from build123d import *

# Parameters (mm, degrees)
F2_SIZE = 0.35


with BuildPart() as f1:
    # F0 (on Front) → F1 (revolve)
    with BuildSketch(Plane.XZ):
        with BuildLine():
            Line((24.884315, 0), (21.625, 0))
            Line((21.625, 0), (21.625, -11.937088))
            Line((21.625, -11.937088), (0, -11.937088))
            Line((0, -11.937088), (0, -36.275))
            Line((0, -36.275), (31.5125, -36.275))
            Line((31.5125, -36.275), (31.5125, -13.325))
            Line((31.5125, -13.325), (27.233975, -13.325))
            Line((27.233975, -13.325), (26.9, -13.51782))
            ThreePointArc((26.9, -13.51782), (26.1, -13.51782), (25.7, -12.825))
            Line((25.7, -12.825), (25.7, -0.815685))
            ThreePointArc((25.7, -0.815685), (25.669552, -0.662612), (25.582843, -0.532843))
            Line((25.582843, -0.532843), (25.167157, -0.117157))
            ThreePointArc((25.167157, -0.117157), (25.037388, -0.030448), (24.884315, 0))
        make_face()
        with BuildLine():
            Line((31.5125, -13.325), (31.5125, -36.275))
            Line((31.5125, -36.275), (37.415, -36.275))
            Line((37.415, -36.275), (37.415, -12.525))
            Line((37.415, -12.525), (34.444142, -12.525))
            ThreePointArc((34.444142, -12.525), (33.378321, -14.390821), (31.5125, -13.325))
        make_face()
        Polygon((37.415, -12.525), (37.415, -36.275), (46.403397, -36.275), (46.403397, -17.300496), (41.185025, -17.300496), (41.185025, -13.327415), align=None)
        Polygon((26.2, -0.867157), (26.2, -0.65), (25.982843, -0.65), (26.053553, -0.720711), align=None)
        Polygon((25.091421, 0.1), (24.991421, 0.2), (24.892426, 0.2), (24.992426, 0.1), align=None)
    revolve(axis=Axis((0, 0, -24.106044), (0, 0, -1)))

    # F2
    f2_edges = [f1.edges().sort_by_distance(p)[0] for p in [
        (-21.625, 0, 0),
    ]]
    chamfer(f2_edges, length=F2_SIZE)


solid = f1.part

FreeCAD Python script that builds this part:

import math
import FreeCAD as App
import Part
import Sketcher
Q = App.Units.Quantity


def edges_at(feature, points):
    """Names of the edges that pass closest to the given points."""
    edges = feature.Shape.Edges
    near = lambda p: min(range(len(edges)), key=lambda i: edges[i].distToShape(Part.Vertex(*p))[0])
    return sorted({f"Edge{near(p) + 1}" for p in points})


def add_polygon(sketch, points):
    """Adds a closed chain of lines whose ends are joined by coincident constraints."""
    first, n = sketch.GeometryCount, len(points)
    for a, b in zip(points, points[1:] + points[:1]):
        sketch.addGeometry(Part.LineSegment(App.Vector(*a, 0), App.Vector(*b, 0)), False)
    for i in range(n):
        sketch.addConstraint(Sketcher.Constraint("Coincident", first + i, 2, first + (i + 1) % n, 1))

doc = App.newDocument("Part")
body = doc.addObject("PartDesign::Body", "Body")
body.AllowCompound = True

# Sketch on XZ plane
sketch1 = doc.addObject("Sketcher::SketchObject", "Sketch")
body.addObject(sketch1)
sketch1.AttachmentSupport = (doc.XZ_Plane, [""])
sketch1.MapMode = "FlatFace"
sketch1.addGeometry(Part.LineSegment(App.Vector(24.884315, 0, 0), App.Vector(21.625, 0, 0)), False)  # 0
sketch1.addGeometry(Part.LineSegment(App.Vector(21.625, 0, 0), App.Vector(21.625, -11.937088, 0)), False)  # 1
sketch1.addGeometry(Part.LineSegment(App.Vector(21.625, -11.937088, 0), App.Vector(0, -11.937088, 0)), False)  # 2
sketch1.addGeometry(Part.LineSegment(App.Vector(0, -11.937088, 0), App.Vector(0, -36.275, 0)), False)  # 3
sketch1.addGeometry(Part.LineSegment(App.Vector(0, -36.275, 0), App.Vector(46.403397, -36.275, 0)), False)  # 4
sketch1.addGeometry(Part.LineSegment(App.Vector(46.403397, -36.275, 0), App.Vector(46.403397, -17.300496, 0)), False)  # 5
sketch1.addGeometry(Part.LineSegment(App.Vector(46.403397, -17.300496, 0), App.Vector(41.185025, -17.300496, 0)), False)  # 6
sketch1.addGeometry(Part.LineSegment(App.Vector(41.185025, -17.300496, 0), App.Vector(41.185025, -13.327415, 0)), False)  # 7
sketch1.addGeometry(Part.LineSegment(App.Vector(41.185025, -13.327415, 0), App.Vector(37.415, -12.525, 0)), False)  # 8
sketch1.addGeometry(Part.LineSegment(App.Vector(37.415, -12.525, 0), App.Vector(34.444142, -12.525, 0)), False)  # 9
sketch1.addGeometry(Part.ArcOfCircle(Part.Circle(App.Vector(32.978321, -12.925, 0), App.Vector(0, 0, 1), 1.519418), math.radians(-164.736491), math.radians(15.263509)), False)  # 10
sketch1.addGeometry(Part.LineSegment(App.Vector(31.5125, -13.325, 0), App.Vector(27.233975, -13.325, 0)), False)  # 11
sketch1.addGeometry(Part.LineSegment(App.Vector(27.233975, -13.325, 0), App.Vector(26.9, -13.51782, 0)), False)  # 12
sketch1.addGeometry(Part.ArcOfCircle(Part.Circle(App.Vector(26.5, -12.825, 0), App.Vector(0, 0, 1), 0.8), math.radians(-179.999977), math.radians(-60)), False)  # 13
sketch1.addGeometry(Part.LineSegment(App.Vector(25.7, -12.825, 0), App.Vector(25.7, -0.815685, 0)), False)  # 14
sketch1.addGeometry(Part.ArcOfCircle(Part.Circle(App.Vector(25.300002, -0.815684, 0), App.Vector(0, 0, 1), 0.399998), math.radians(-0.000078), math.radians(45.00008)), False)  # 15
sketch1.addGeometry(Part.LineSegment(App.Vector(25.582843, -0.532843, 0), App.Vector(25.167157, -0.117157, 0)), False)  # 16
sketch1.addGeometry(Part.ArcOfCircle(Part.Circle(App.Vector(24.884316, -0.399998, 0), App.Vector(0, 0, 1), 0.399998), math.radians(44.99992), math.radians(90.000078)), False)  # 17
add_polygon(sketch1, [(26.2, -0.867157), (26.2, -0.65), (25.982843, -0.65), (26.053553, -0.720711)])  # lines 18-21
add_polygon(sketch1, [(25.091421, 0.1), (24.991421, 0.2), (24.892426, 0.2), (24.992426, 0.1)])  # lines 22-25
sketch1.addConstraint([
    Sketcher.Constraint("Coincident", 0, 2, 1, 1),
    Sketcher.Constraint("Coincident", 1, 2, 2, 1),
    Sketcher.Constraint("Coincident", 2, 2, 3, 1),
    Sketcher.Constraint("Coincident", 3, 2, 4, 1),
    Sketcher.Constraint("Coincident", 4, 2, 5, 1),
    Sketcher.Constraint("Coincident", 5, 2, 6, 1),
    Sketcher.Constraint("Coincident", 6, 2, 7, 1),
    Sketcher.Constraint("Coincident", 7, 2, 8, 1),
    Sketcher.Constraint("Coincident", 8, 2, 9, 1),
    Sketcher.Constraint("Coincident", 9, 2, 10, 2),
    Sketcher.Constraint("Coincident", 10, 1, 11, 1),
    Sketcher.Constraint("Coincident", 11, 2, 12, 1),
    Sketcher.Constraint("Tangent", 12, 2, 13, 2),
    Sketcher.Constraint("Tangent", 13, 1, 14, 1),
    Sketcher.Constraint("Tangent", 14, 2, 15, 1),
    Sketcher.Constraint("Tangent", 15, 2, 16, 1),
    Sketcher.Constraint("Tangent", 16, 2, 17, 1),
    Sketcher.Constraint("Tangent", 17, 2, 0, 1),
    Sketcher.Constraint("Horizontal", 0),
    Sketcher.Constraint("Vertical", 1),
    Sketcher.Constraint("Horizontal", 2),
    Sketcher.Constraint("Vertical", 3),
    Sketcher.Constraint("Horizontal", 4),
    Sketcher.Constraint("Vertical", 5),
    Sketcher.Constraint("Horizontal", 6),
    Sketcher.Constraint("Vertical", 7),
    Sketcher.Constraint("Horizontal", 9),
    Sketcher.Constraint("Horizontal", 11),
    Sketcher.Constraint("Vertical", 14),
    Sketcher.Constraint("Vertical", 18),
    Sketcher.Constraint("Horizontal", 19),
    Sketcher.Constraint("Horizontal", 23),
    Sketcher.Constraint("Horizontal", 25),
    Sketcher.Constraint("Equal", 15, 17),
    Sketcher.Constraint("PointOnObject", 0, 2, -1),
    Sketcher.Constraint("PointOnObject", 2, 2, -2),
    Sketcher.Constraint("Parallel", 16, 22),
    Sketcher.Constraint("Parallel", 22, 24),
    Sketcher.Constraint("Equal", 19, 18),
    Sketcher.Constraint("Radius", 13, 0.8),
    Sketcher.Constraint("Angle", 16, Q("135 deg")),
    Sketcher.Constraint("Distance", 20, 0.1),
    Sketcher.Constraint("DistanceX", -1, 1, 13, 3, 26.5),
    Sketcher.Constraint("DistanceX", -1, 1, 12, 2, 26.9),
    Sketcher.Constraint("DistanceX", -1, 1, 18, 2, 26.2),
    Sketcher.Constraint("DistanceY", -1, 1, 22, 2, 0.2),
    Sketcher.Constraint("DistanceY", -1, 1, 24, 2, 0.1),
    Sketcher.Constraint("DistanceY", 10, 3, 13, 3, 0.1),
    Sketcher.Constraint("DistanceY", 10, 3, 8, 2, 0.4),
    Sketcher.Constraint("DistanceY", 10, 1, 10, 3, 0.4),
    Sketcher.Constraint("DistanceX", 15, 2, 19, 2, 0.4),
    Sketcher.Constraint("DistanceX", 2, 2, 2, 1, 21.625),
    Sketcher.Constraint("DistanceY", 18, 2, -1, 1, 0.65),
    Sketcher.Constraint("Radius", 10, 1.519418),
    Sketcher.Constraint("DistanceY", 3, 2, 13, 3, 23.45),
    Sketcher.Constraint("DistanceY", 10, 3, -1, 1, 12.925),
    Sketcher.Constraint("DistanceX", -1, 1, 8, 2, 37.415),
    Sketcher.Constraint("Radius", 15, 0.399998),
    Sketcher.Constraint("DistanceX", 6, 2, 6, 1, 5.218372),
    Sketcher.Constraint("DistanceY", 3, 2, 3, 1, 24.337912),
    Sketcher.Constraint("DistanceY", 7, 1, 7, 2, 3.973081),
    Sketcher.Constraint("DistanceX", -1, 1, 10, 1, 31.5125),
    Sketcher.Constraint("Distance", 16, 0.587869),
    Sketcher.Constraint("DistanceX", 4, 1, 4, 2, 46.403397),
    Sketcher.Constraint("DistanceX", 23, 2, 23, 1, 0.098995),
    Sketcher.Constraint("DistanceY", 5, 1, 5, 2, 18.974504),
    Sketcher.Constraint("DistanceY", 20, 2, -1, 1, 0.720711),
    Sketcher.Constraint("DistanceX", -1, 1, 22, 2, 24.991421),
])
revolution = doc.addObject("PartDesign::Revolution", "Revolution")
body.addObject(revolution)
revolution.Profile = sketch1
revolution.ReferenceAxis = (sketch1, ["V_Axis"])
revolution.Angle = 360
doc.recompute()

chamfer = doc.addObject("PartDesign::Chamfer", "Chamfer")
body.addObject(chamfer)
chamfer.Base = (revolution, edges_at(revolution, [(-21.625, 0, 0)]))
chamfer.Size = 0.35

doc.recompute()
